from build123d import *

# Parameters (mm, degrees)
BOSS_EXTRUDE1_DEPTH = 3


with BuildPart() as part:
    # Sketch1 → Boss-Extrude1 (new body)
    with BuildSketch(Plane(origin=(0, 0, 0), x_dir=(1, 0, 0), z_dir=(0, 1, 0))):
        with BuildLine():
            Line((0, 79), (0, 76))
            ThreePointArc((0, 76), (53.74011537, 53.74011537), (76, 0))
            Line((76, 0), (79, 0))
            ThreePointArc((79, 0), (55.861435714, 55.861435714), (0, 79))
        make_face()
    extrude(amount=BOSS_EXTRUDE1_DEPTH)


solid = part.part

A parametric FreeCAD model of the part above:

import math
import FreeCAD as App
import Part
import Sketcher

doc = App.newDocument("Part")
params = doc.addObject("Spreadsheet::Sheet", "Params")
for row, (alias, value) in enumerate([
    ("sketch1_radius", "76 mm"),
    ("sketch1_radius2", "79 mm"),
    ("pad1_length", "3 mm"),
], start=1):
    params.set(f"A{row}", alias)
    params.set(f"B{row}", "=" + value)
    params.setAlias(f"B{row}", alias)

body = doc.addObject("PartDesign::Body", "Body")

# Sketch on XZ plane
sketch1 = body.newObject("Sketcher::SketchObject", "Sketch")
sketch1.AttachmentSupport = (doc.getObject("XZ_Plane"), [""])
sketch1.MapMode = "FlatFace"
sketch1.addGeometry([
    Part.LineSegment(App.Vector(0, -79, 0), App.Vector(0, -76, 0)),
    Part.ArcOfCircle(Part.Circle(App.Vector(0, 0, 0), App.Vector(0, 0, 1), 76), math.radians(-90), math.radians(0)),
    Part.LineSegment(App.Vector(76, 0, 0), App.Vector(79, 0, 0)),
    Part.ArcOfCircle(Part.Circle(App.Vector(0, 0, 0), App.Vector(0, 0, 1), 79), math.radians(-90), math.radians(0)),
], False)
sketch1.addConstraint([
    Sketcher.Constraint("Coincident", 0, 2, 1, 1),
    Sketcher.Constraint("Coincident", 1, 2, 2, 1),
    Sketcher.Constraint("Coincident", 2, 2, 3, 2),
    Sketcher.Constraint("Coincident", 3, 1, 0, 1),
    Sketcher.Constraint("Vertical", 0),
    Sketcher.Constraint("Horizontal", 2),
    Sketcher.Constraint("Coincident", 1, 3, -1, 1),
    Sketcher.Constraint("Coincident", 3, 3, -1, 1),
    Sketcher.Constraint("PointOnObject", 0, 2, -2),
    Sketcher.Constraint("PointOnObject", 1, 2, -1),
    Sketcher.Constraint("Radius", 1, 76.0),
    Sketcher.Constraint("Radius", 3, 79.0),
])
sketch1.setExpression("Constraints[10]", "Params.sketch1_radius")
sketch1.setExpression("Constraints[11]", "Params.sketch1_radius2")
pad1 = body.newObject("PartDesign::Pad", "Pad")
pad1.Profile = sketch1
pad1.setExpression("Length", "Params.pad1_length")
pad1.Reversed = True

doc.recompute()
